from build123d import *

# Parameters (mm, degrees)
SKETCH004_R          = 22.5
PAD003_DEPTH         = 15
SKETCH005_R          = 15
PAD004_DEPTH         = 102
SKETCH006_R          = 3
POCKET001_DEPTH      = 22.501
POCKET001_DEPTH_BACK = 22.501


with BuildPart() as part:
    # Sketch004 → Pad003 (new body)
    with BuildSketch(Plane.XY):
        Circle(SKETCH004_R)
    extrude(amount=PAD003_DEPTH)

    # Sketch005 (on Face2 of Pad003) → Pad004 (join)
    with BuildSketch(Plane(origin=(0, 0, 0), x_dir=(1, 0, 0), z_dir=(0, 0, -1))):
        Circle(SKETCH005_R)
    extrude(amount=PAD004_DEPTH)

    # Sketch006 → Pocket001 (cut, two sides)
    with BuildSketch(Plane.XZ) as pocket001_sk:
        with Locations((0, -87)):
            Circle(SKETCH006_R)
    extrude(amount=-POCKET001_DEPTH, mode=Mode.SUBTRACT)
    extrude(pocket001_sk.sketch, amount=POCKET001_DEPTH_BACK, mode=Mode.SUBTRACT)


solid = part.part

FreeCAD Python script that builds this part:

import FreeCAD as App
import Part
import Sketcher

V = App.Vector
Q = App.Units.Quantity

doc = App.newDocument("Part")
params = doc.addObject("Spreadsheet::Sheet", "Params")
for row, (alias, value) in enumerate([
    ("sketch1_diameter", "45 mm"),
    ("pad1_length", "15 mm"),
    ("sketch2_diameter", "30 mm"),
    ("pad2_length", "102 mm"),
    ("sketch3_diameter", "6 mm"),
], start=1):
    params.set(f"A{row}", alias)
    params.set(f"B{row}", "=" + value)
    params.setAlias(f"B{row}", alias)

body = doc.addObject("PartDesign::Body", "Body")

# Sketch on XY plane
sketch1 = doc.addObject("Sketcher::SketchObject", "Sketch")
body.addObject(sketch1)
sketch1.AttachmentSupport = (doc.XY_Plane, [""])
sketch1.MapMode = "FlatFace"
sketch1.addGeometry(Part.Circle(V(0, 0, 0), V(0, 0, 1), 22.5), False)
sketch1.addConstraint([
    Sketcher.Constraint("Coincident", 0, 3, -1, 1),
    Sketcher.Constraint("Diameter", 0, Q("45 mm")),
])
sketch1.setExpression("Constraints[1]", "Params.sketch1_diameter")
pad1 = doc.addObject("PartDesign::Pad", "Pad")
body.addObject(pad1)
pad1.Profile = sketch1
pad1.setExpression("Length", "Params.pad1_length")

# Sketch on XY plane
sketch2 = doc.addObject("Sketcher::SketchObject", "Sketch001")
body.addObject(sketch2)
sketch2.AttachmentSupport = (doc.XY_Plane, [""])
sketch2.MapMode = "FlatFace"
sketch2.addGeometry(Part.Circle(V(0, 0, 0), V(0, 0, 1), 15), False)
sketch2.addConstraint([
    Sketcher.Constraint("Coincident", 0, 3, -1, 1),
    Sketcher.Constraint("Diameter", 0, Q("30 mm")),
])
sketch2.setExpression("Constraints[1]", "Params.sketch2_diameter")
pad2 = doc.addObject("PartDesign::Pad", "Pad001")
body.addObject(pad2)
pad2.Profile = sketch2
pad2.setExpression("Length", "Params.pad2_length")
pad2.Reversed = True

# Sketch on XZ plane
sketch3 = doc.addObject("Sketcher::SketchObject", "Sketch002")
body.addObject(sketch3)
sketch3.AttachmentSupport = (doc.XZ_Plane, [""])
sketch3.MapMode = "FlatFace"
sketch3.addGeometry(Part.Circle(V(0, -87, 0), V(0, 0, 1), 3), False)
sketch3.addConstraint([
    Sketcher.Constraint("PointOnObject", 0, 3, -2),
    Sketcher.Constraint("Diameter", 0, Q("6 mm")),
    Sketcher.Constraint("DistanceY", 0, 3, -1, 1, Q("87 mm")),
])
sketch3.setExpression("Constraints[1]", "Params.sketch3_diameter")
pocket1 = doc.addObject("PartDesign::Pocket", "Pocket")
body.addObject(pocket1)
pocket1.Profile = sketch3
pocket1.Type = "ThroughAll"
pocket1.Midplane = True

doc.recompute()
